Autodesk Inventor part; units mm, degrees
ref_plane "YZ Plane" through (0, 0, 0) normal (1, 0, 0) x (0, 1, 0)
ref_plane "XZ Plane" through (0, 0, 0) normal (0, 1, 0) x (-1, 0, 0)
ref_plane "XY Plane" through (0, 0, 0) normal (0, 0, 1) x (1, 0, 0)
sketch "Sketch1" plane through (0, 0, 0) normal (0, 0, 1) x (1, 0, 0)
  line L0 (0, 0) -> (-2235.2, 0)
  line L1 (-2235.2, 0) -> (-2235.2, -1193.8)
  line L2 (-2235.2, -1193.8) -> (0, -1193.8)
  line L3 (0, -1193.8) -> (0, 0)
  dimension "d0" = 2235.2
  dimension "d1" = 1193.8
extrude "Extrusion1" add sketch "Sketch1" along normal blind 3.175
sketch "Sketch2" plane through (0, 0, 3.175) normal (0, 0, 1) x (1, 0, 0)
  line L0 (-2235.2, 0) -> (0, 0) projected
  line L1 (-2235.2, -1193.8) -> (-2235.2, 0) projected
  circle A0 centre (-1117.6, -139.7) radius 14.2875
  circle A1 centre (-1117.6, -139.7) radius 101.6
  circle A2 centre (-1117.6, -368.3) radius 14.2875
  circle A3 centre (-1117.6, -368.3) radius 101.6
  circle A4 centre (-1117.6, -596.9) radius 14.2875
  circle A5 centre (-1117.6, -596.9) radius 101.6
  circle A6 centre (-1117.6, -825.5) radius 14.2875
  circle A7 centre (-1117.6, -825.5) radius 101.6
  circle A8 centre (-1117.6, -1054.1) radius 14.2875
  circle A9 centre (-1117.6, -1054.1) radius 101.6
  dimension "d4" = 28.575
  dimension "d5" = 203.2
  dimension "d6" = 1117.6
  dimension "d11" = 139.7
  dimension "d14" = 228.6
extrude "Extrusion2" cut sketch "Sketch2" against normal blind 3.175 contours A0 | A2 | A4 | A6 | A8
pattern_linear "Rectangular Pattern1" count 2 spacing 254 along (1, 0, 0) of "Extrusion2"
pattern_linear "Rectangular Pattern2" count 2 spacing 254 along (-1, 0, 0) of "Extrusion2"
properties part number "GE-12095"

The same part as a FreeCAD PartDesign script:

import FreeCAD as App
import Part
import Sketcher
Q = App.Units.Quantity

doc = App.newDocument("Part")
body = doc.addObject("PartDesign::Body", "Body")

sketch1 = body.newObject("Sketcher::SketchObject", "Sketch")
sketch1.AttachmentSupport = (doc.getObject("XY_Plane"), [""])
sketch1.MapMode = "FlatFace"
sketch1.addGeometry([
    Part.LineSegment(App.Vector(0, -1194, 0), App.Vector(0, 0, 0)),
    Part.LineSegment(App.Vector(0, 0, 0), App.Vector(-2235, 0, 0)),
    Part.LineSegment(App.Vector(-2235, 0, 0), App.Vector(-2235, -1194, 0)),
    Part.LineSegment(App.Vector(-2235, -1194, 0), App.Vector(0, -1194, 0)),
], False)
sketch1.addConstraint([
    Sketcher.Constraint("Coincident", 0, 2, 1, 1),
    Sketcher.Constraint("Coincident", 1, 2, 2, 1),
    Sketcher.Constraint("Coincident", 2, 2, 3, 1),
    Sketcher.Constraint("Coincident", 3, 2, 0, 1),
    Sketcher.Constraint("Vertical", 0),
    Sketcher.Constraint("Horizontal", 1),
    Sketcher.Constraint("Vertical", 2),
    Sketcher.Constraint("Horizontal", 3),
    Sketcher.Constraint("Coincident", 0, 2, -1, 1),
    Sketcher.Constraint("DistanceX", 1, 2, 1, 1, Q("88 in")),
    Sketcher.Constraint("DistanceY", 0, 1, 0, 2, Q("47 in")),
])
pad1 = body.newObject("PartDesign::Pad", "Pad")
pad1.Profile = sketch1
pad1.Length = Q("0.125 in")

sketch2 = body.newObject("Sketcher::SketchObject", "Sketch001")
sketch2.AttachmentSupport = (doc.getObject("XY_Plane"), [""])
sketch2.MapMode = "FlatFace"
sketch2.AttachmentOffset = App.Placement(App.Vector(0, 0, 0.125 * 25.4), App.Rotation())
sketch2.addGeometry([
    Part.Circle(App.Vector(-1118, -140, 0), App.Vector(0, 0, 1), 14),
    Part.Circle(App.Vector(-1118, -368, 0), App.Vector(0, 0, 1), 14),
    Part.Circle(App.Vector(-1118, -597, 0), App.Vector(0, 0, 1), 14),
    Part.Circle(App.Vector(-1118, -826, 0), App.Vector(0, 0, 1), 14),
    Part.Circle(App.Vector(-1118, -1054, 0), App.Vector(0, 0, 1), 14),
], False)
sketch2.addConstraint([
    Sketcher.Constraint("Equal", 0, 1),
    Sketcher.Constraint("Equal", 1, 2),
    Sketcher.Constraint("Equal", 2, 3),
    Sketcher.Constraint("Equal", 3, 4),
    Sketcher.Constraint("Vertical", 0, 3, 1, 3),
    Sketcher.Constraint("Vertical", 1, 3, 2, 3),
    Sketcher.Constraint("Vertical", 2, 3, 3, 3),
    Sketcher.Constraint("Vertical", 3, 3, 4, 3),
    Sketcher.Constraint("Diameter", 0, Q("1.125 in")),
    Sketcher.Constraint("DistanceX", 0, 3, -1, 1, Q("44 in")),
    Sketcher.Constraint("DistanceY", 1, 3, 0, 3, Q("9 in")),
    Sketcher.Constraint("DistanceY", 2, 3, 1, 3, Q("9 in")),
    Sketcher.Constraint("DistanceY", 3, 3, 2, 3, Q("9 in")),
    Sketcher.Constraint("DistanceY", 4, 3, 3, 3, Q("9 in")),
    Sketcher.Constraint("DistanceY", 0, 3, -1, 1, Q("5.5 in")),
])
pocket1 = body.newObject("PartDesign::Pocket", "Pocket")
pocket1.Profile = sketch2
pocket1.Length = Q("0.125 in")
doc.recompute()

linearpattern = body.newObject("PartDesign::LinearPattern", "LinearPattern")
linearpattern.Originals = [pocket1]
linearpattern.Direction = (doc.getObject("X_Axis"), [""])
linearpattern.Mode = "offset"
linearpattern.Offset = Q("10 in")
linearpattern.Occurrences = 2
body.Tip = linearpattern
doc.recompute()

linearpattern2 = body.newObject("PartDesign::LinearPattern", "LinearPattern001")
linearpattern2.Originals = [pocket1]
linearpattern2.Direction = (doc.getObject("X_Axis"), [""])
linearpattern2.Mode = "offset"
linearpattern2.Offset = Q("10 in")
linearpattern2.Occurrences = 2
linearpattern2.Reversed = True
body.Tip = linearpattern2

doc.recompute()
